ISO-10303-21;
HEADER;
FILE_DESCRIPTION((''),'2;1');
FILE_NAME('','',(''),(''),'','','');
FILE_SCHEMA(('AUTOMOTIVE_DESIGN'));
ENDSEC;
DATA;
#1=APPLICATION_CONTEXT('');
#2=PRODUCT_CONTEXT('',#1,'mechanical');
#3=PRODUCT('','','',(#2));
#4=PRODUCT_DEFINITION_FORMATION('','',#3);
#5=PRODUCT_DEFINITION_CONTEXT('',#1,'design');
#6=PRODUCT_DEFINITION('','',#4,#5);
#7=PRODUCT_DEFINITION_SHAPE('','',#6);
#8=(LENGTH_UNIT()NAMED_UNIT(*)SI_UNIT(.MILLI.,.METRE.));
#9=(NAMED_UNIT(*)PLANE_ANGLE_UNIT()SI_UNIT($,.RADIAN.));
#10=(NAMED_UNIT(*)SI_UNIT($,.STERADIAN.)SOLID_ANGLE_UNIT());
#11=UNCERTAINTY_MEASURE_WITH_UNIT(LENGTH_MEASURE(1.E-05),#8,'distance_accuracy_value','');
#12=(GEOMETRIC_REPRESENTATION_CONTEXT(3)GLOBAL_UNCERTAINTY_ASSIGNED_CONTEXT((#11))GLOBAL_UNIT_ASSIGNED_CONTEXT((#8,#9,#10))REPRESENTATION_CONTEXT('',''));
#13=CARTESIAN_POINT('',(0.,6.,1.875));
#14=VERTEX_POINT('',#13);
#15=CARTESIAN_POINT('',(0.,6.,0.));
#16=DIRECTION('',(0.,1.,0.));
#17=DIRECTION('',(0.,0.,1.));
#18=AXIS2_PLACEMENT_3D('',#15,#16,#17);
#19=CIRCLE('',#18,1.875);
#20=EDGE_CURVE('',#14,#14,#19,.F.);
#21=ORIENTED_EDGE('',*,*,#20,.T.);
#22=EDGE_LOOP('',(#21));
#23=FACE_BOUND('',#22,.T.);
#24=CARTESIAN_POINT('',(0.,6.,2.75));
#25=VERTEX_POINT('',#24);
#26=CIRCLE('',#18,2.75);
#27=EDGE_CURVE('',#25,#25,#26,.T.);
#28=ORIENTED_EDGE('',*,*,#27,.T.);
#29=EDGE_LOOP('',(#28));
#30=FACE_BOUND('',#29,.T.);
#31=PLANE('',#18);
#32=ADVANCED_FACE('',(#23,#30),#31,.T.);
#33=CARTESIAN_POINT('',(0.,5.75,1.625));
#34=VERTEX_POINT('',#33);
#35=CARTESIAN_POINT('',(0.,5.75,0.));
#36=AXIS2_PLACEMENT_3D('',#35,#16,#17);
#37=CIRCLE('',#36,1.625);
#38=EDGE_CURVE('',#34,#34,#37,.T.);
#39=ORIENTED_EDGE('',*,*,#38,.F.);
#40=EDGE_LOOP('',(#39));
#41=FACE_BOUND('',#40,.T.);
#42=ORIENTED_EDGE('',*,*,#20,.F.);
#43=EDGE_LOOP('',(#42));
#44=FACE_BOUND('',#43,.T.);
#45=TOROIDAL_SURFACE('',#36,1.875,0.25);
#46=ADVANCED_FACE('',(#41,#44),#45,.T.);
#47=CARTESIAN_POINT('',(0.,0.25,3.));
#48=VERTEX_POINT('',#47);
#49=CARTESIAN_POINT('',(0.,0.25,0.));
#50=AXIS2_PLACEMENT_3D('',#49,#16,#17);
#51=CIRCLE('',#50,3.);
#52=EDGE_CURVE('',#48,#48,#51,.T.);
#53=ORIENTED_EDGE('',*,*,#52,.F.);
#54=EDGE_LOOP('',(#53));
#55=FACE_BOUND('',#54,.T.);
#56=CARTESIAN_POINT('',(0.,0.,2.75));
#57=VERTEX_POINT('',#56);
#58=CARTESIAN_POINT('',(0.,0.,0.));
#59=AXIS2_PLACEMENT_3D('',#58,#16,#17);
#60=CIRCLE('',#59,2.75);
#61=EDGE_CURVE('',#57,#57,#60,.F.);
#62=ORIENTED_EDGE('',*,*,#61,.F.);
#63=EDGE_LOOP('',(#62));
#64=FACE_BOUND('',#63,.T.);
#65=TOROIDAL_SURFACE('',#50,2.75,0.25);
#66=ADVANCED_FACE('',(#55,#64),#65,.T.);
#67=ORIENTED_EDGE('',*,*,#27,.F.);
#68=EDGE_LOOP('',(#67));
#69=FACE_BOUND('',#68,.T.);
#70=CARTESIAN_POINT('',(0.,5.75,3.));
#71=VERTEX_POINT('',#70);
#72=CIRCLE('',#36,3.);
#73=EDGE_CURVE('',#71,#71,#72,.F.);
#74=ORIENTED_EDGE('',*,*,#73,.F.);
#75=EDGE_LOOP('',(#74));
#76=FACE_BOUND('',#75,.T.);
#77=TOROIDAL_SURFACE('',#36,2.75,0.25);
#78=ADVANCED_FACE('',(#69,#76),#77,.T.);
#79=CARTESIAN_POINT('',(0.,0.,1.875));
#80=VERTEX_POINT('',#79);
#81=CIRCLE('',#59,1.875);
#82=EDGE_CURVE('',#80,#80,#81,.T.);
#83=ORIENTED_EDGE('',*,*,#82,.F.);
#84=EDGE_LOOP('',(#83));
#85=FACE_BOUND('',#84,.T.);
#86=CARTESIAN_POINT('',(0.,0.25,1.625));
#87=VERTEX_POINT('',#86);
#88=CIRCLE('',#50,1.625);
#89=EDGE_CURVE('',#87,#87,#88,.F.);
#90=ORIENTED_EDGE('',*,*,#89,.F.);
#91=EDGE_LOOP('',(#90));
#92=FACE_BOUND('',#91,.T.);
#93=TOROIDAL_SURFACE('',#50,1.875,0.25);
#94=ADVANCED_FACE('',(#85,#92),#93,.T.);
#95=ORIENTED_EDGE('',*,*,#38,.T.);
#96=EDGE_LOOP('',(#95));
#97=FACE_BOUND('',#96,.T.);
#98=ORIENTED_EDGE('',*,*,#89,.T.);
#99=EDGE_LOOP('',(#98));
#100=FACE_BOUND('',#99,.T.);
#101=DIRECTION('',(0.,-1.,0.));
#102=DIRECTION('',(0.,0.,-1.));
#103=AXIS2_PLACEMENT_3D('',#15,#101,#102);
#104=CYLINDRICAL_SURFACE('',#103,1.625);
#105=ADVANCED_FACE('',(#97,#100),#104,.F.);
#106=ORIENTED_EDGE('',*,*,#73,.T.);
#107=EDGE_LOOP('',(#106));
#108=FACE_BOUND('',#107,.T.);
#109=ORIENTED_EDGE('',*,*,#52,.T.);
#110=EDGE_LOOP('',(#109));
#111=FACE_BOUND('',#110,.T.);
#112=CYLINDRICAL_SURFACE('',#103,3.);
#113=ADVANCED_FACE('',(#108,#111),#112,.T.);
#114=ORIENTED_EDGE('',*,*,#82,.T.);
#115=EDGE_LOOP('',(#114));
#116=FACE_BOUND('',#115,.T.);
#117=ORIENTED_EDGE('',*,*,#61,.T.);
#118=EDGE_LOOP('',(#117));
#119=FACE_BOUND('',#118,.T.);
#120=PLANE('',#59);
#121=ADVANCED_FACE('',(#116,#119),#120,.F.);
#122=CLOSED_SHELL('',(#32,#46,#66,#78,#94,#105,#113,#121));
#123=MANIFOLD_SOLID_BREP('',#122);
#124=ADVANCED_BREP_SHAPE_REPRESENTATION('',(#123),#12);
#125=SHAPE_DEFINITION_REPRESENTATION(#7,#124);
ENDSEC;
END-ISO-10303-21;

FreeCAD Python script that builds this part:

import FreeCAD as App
import Part
import Sketcher

V = App.Vector
Q = App.Units.Quantity


def edges_at(feature, points):
    """Names of the edges that pass closest to the given points."""
    edges = feature.Shape.Edges
    near = lambda p: min(range(len(edges)), key=lambda i: edges[i].distToShape(Part.Vertex(*p))[0])
    return sorted({f"Edge{near(p) + 1}" for p in points})

doc = App.newDocument("Part")
body = doc.addObject("PartDesign::Body", "Body")

sketch1 = body.newObject("Sketcher::SketchObject", "Sketch")
sketch1.AttachmentSupport = (doc.getObject("XZ_Plane"), [""])
sketch1.MapMode = "FlatFace"
sketch1.addGeometry(Part.Circle(V(0, 0, 0), V(0, 0, 1), 3), False)
sketch1.addGeometry(Part.Circle(V(0, 0, 0), V(0, 0, 1), 1.6), False)
sketch1.addConstraint(Sketcher.Constraint("Coincident", 0, 3, -1, 1))
sketch1.addConstraint(Sketcher.Constraint("Coincident", 1, 3, -1, 1))
sketch1.addConstraint(Sketcher.Constraint("Diameter", 0, Q("6 mm")))
sketch1.addConstraint(Sketcher.Constraint("Diameter", 1, Q("3.25 mm")))
pad1 = body.newObject("PartDesign::Pad", "Pad")
pad1.Profile = sketch1
pad1.Length = 6
pad1.Reversed = True
doc.recompute()

fillet = body.newObject("PartDesign::Fillet", "Fillet")
fillet.Base = (pad1, edges_at(pad1, [
    (0, 0, -3),
    (0, 6, -3),
    (0, 0, -1.625),
    (0, 6, -1.625),
]))
fillet.Radius = 0.25

doc.recompute()
